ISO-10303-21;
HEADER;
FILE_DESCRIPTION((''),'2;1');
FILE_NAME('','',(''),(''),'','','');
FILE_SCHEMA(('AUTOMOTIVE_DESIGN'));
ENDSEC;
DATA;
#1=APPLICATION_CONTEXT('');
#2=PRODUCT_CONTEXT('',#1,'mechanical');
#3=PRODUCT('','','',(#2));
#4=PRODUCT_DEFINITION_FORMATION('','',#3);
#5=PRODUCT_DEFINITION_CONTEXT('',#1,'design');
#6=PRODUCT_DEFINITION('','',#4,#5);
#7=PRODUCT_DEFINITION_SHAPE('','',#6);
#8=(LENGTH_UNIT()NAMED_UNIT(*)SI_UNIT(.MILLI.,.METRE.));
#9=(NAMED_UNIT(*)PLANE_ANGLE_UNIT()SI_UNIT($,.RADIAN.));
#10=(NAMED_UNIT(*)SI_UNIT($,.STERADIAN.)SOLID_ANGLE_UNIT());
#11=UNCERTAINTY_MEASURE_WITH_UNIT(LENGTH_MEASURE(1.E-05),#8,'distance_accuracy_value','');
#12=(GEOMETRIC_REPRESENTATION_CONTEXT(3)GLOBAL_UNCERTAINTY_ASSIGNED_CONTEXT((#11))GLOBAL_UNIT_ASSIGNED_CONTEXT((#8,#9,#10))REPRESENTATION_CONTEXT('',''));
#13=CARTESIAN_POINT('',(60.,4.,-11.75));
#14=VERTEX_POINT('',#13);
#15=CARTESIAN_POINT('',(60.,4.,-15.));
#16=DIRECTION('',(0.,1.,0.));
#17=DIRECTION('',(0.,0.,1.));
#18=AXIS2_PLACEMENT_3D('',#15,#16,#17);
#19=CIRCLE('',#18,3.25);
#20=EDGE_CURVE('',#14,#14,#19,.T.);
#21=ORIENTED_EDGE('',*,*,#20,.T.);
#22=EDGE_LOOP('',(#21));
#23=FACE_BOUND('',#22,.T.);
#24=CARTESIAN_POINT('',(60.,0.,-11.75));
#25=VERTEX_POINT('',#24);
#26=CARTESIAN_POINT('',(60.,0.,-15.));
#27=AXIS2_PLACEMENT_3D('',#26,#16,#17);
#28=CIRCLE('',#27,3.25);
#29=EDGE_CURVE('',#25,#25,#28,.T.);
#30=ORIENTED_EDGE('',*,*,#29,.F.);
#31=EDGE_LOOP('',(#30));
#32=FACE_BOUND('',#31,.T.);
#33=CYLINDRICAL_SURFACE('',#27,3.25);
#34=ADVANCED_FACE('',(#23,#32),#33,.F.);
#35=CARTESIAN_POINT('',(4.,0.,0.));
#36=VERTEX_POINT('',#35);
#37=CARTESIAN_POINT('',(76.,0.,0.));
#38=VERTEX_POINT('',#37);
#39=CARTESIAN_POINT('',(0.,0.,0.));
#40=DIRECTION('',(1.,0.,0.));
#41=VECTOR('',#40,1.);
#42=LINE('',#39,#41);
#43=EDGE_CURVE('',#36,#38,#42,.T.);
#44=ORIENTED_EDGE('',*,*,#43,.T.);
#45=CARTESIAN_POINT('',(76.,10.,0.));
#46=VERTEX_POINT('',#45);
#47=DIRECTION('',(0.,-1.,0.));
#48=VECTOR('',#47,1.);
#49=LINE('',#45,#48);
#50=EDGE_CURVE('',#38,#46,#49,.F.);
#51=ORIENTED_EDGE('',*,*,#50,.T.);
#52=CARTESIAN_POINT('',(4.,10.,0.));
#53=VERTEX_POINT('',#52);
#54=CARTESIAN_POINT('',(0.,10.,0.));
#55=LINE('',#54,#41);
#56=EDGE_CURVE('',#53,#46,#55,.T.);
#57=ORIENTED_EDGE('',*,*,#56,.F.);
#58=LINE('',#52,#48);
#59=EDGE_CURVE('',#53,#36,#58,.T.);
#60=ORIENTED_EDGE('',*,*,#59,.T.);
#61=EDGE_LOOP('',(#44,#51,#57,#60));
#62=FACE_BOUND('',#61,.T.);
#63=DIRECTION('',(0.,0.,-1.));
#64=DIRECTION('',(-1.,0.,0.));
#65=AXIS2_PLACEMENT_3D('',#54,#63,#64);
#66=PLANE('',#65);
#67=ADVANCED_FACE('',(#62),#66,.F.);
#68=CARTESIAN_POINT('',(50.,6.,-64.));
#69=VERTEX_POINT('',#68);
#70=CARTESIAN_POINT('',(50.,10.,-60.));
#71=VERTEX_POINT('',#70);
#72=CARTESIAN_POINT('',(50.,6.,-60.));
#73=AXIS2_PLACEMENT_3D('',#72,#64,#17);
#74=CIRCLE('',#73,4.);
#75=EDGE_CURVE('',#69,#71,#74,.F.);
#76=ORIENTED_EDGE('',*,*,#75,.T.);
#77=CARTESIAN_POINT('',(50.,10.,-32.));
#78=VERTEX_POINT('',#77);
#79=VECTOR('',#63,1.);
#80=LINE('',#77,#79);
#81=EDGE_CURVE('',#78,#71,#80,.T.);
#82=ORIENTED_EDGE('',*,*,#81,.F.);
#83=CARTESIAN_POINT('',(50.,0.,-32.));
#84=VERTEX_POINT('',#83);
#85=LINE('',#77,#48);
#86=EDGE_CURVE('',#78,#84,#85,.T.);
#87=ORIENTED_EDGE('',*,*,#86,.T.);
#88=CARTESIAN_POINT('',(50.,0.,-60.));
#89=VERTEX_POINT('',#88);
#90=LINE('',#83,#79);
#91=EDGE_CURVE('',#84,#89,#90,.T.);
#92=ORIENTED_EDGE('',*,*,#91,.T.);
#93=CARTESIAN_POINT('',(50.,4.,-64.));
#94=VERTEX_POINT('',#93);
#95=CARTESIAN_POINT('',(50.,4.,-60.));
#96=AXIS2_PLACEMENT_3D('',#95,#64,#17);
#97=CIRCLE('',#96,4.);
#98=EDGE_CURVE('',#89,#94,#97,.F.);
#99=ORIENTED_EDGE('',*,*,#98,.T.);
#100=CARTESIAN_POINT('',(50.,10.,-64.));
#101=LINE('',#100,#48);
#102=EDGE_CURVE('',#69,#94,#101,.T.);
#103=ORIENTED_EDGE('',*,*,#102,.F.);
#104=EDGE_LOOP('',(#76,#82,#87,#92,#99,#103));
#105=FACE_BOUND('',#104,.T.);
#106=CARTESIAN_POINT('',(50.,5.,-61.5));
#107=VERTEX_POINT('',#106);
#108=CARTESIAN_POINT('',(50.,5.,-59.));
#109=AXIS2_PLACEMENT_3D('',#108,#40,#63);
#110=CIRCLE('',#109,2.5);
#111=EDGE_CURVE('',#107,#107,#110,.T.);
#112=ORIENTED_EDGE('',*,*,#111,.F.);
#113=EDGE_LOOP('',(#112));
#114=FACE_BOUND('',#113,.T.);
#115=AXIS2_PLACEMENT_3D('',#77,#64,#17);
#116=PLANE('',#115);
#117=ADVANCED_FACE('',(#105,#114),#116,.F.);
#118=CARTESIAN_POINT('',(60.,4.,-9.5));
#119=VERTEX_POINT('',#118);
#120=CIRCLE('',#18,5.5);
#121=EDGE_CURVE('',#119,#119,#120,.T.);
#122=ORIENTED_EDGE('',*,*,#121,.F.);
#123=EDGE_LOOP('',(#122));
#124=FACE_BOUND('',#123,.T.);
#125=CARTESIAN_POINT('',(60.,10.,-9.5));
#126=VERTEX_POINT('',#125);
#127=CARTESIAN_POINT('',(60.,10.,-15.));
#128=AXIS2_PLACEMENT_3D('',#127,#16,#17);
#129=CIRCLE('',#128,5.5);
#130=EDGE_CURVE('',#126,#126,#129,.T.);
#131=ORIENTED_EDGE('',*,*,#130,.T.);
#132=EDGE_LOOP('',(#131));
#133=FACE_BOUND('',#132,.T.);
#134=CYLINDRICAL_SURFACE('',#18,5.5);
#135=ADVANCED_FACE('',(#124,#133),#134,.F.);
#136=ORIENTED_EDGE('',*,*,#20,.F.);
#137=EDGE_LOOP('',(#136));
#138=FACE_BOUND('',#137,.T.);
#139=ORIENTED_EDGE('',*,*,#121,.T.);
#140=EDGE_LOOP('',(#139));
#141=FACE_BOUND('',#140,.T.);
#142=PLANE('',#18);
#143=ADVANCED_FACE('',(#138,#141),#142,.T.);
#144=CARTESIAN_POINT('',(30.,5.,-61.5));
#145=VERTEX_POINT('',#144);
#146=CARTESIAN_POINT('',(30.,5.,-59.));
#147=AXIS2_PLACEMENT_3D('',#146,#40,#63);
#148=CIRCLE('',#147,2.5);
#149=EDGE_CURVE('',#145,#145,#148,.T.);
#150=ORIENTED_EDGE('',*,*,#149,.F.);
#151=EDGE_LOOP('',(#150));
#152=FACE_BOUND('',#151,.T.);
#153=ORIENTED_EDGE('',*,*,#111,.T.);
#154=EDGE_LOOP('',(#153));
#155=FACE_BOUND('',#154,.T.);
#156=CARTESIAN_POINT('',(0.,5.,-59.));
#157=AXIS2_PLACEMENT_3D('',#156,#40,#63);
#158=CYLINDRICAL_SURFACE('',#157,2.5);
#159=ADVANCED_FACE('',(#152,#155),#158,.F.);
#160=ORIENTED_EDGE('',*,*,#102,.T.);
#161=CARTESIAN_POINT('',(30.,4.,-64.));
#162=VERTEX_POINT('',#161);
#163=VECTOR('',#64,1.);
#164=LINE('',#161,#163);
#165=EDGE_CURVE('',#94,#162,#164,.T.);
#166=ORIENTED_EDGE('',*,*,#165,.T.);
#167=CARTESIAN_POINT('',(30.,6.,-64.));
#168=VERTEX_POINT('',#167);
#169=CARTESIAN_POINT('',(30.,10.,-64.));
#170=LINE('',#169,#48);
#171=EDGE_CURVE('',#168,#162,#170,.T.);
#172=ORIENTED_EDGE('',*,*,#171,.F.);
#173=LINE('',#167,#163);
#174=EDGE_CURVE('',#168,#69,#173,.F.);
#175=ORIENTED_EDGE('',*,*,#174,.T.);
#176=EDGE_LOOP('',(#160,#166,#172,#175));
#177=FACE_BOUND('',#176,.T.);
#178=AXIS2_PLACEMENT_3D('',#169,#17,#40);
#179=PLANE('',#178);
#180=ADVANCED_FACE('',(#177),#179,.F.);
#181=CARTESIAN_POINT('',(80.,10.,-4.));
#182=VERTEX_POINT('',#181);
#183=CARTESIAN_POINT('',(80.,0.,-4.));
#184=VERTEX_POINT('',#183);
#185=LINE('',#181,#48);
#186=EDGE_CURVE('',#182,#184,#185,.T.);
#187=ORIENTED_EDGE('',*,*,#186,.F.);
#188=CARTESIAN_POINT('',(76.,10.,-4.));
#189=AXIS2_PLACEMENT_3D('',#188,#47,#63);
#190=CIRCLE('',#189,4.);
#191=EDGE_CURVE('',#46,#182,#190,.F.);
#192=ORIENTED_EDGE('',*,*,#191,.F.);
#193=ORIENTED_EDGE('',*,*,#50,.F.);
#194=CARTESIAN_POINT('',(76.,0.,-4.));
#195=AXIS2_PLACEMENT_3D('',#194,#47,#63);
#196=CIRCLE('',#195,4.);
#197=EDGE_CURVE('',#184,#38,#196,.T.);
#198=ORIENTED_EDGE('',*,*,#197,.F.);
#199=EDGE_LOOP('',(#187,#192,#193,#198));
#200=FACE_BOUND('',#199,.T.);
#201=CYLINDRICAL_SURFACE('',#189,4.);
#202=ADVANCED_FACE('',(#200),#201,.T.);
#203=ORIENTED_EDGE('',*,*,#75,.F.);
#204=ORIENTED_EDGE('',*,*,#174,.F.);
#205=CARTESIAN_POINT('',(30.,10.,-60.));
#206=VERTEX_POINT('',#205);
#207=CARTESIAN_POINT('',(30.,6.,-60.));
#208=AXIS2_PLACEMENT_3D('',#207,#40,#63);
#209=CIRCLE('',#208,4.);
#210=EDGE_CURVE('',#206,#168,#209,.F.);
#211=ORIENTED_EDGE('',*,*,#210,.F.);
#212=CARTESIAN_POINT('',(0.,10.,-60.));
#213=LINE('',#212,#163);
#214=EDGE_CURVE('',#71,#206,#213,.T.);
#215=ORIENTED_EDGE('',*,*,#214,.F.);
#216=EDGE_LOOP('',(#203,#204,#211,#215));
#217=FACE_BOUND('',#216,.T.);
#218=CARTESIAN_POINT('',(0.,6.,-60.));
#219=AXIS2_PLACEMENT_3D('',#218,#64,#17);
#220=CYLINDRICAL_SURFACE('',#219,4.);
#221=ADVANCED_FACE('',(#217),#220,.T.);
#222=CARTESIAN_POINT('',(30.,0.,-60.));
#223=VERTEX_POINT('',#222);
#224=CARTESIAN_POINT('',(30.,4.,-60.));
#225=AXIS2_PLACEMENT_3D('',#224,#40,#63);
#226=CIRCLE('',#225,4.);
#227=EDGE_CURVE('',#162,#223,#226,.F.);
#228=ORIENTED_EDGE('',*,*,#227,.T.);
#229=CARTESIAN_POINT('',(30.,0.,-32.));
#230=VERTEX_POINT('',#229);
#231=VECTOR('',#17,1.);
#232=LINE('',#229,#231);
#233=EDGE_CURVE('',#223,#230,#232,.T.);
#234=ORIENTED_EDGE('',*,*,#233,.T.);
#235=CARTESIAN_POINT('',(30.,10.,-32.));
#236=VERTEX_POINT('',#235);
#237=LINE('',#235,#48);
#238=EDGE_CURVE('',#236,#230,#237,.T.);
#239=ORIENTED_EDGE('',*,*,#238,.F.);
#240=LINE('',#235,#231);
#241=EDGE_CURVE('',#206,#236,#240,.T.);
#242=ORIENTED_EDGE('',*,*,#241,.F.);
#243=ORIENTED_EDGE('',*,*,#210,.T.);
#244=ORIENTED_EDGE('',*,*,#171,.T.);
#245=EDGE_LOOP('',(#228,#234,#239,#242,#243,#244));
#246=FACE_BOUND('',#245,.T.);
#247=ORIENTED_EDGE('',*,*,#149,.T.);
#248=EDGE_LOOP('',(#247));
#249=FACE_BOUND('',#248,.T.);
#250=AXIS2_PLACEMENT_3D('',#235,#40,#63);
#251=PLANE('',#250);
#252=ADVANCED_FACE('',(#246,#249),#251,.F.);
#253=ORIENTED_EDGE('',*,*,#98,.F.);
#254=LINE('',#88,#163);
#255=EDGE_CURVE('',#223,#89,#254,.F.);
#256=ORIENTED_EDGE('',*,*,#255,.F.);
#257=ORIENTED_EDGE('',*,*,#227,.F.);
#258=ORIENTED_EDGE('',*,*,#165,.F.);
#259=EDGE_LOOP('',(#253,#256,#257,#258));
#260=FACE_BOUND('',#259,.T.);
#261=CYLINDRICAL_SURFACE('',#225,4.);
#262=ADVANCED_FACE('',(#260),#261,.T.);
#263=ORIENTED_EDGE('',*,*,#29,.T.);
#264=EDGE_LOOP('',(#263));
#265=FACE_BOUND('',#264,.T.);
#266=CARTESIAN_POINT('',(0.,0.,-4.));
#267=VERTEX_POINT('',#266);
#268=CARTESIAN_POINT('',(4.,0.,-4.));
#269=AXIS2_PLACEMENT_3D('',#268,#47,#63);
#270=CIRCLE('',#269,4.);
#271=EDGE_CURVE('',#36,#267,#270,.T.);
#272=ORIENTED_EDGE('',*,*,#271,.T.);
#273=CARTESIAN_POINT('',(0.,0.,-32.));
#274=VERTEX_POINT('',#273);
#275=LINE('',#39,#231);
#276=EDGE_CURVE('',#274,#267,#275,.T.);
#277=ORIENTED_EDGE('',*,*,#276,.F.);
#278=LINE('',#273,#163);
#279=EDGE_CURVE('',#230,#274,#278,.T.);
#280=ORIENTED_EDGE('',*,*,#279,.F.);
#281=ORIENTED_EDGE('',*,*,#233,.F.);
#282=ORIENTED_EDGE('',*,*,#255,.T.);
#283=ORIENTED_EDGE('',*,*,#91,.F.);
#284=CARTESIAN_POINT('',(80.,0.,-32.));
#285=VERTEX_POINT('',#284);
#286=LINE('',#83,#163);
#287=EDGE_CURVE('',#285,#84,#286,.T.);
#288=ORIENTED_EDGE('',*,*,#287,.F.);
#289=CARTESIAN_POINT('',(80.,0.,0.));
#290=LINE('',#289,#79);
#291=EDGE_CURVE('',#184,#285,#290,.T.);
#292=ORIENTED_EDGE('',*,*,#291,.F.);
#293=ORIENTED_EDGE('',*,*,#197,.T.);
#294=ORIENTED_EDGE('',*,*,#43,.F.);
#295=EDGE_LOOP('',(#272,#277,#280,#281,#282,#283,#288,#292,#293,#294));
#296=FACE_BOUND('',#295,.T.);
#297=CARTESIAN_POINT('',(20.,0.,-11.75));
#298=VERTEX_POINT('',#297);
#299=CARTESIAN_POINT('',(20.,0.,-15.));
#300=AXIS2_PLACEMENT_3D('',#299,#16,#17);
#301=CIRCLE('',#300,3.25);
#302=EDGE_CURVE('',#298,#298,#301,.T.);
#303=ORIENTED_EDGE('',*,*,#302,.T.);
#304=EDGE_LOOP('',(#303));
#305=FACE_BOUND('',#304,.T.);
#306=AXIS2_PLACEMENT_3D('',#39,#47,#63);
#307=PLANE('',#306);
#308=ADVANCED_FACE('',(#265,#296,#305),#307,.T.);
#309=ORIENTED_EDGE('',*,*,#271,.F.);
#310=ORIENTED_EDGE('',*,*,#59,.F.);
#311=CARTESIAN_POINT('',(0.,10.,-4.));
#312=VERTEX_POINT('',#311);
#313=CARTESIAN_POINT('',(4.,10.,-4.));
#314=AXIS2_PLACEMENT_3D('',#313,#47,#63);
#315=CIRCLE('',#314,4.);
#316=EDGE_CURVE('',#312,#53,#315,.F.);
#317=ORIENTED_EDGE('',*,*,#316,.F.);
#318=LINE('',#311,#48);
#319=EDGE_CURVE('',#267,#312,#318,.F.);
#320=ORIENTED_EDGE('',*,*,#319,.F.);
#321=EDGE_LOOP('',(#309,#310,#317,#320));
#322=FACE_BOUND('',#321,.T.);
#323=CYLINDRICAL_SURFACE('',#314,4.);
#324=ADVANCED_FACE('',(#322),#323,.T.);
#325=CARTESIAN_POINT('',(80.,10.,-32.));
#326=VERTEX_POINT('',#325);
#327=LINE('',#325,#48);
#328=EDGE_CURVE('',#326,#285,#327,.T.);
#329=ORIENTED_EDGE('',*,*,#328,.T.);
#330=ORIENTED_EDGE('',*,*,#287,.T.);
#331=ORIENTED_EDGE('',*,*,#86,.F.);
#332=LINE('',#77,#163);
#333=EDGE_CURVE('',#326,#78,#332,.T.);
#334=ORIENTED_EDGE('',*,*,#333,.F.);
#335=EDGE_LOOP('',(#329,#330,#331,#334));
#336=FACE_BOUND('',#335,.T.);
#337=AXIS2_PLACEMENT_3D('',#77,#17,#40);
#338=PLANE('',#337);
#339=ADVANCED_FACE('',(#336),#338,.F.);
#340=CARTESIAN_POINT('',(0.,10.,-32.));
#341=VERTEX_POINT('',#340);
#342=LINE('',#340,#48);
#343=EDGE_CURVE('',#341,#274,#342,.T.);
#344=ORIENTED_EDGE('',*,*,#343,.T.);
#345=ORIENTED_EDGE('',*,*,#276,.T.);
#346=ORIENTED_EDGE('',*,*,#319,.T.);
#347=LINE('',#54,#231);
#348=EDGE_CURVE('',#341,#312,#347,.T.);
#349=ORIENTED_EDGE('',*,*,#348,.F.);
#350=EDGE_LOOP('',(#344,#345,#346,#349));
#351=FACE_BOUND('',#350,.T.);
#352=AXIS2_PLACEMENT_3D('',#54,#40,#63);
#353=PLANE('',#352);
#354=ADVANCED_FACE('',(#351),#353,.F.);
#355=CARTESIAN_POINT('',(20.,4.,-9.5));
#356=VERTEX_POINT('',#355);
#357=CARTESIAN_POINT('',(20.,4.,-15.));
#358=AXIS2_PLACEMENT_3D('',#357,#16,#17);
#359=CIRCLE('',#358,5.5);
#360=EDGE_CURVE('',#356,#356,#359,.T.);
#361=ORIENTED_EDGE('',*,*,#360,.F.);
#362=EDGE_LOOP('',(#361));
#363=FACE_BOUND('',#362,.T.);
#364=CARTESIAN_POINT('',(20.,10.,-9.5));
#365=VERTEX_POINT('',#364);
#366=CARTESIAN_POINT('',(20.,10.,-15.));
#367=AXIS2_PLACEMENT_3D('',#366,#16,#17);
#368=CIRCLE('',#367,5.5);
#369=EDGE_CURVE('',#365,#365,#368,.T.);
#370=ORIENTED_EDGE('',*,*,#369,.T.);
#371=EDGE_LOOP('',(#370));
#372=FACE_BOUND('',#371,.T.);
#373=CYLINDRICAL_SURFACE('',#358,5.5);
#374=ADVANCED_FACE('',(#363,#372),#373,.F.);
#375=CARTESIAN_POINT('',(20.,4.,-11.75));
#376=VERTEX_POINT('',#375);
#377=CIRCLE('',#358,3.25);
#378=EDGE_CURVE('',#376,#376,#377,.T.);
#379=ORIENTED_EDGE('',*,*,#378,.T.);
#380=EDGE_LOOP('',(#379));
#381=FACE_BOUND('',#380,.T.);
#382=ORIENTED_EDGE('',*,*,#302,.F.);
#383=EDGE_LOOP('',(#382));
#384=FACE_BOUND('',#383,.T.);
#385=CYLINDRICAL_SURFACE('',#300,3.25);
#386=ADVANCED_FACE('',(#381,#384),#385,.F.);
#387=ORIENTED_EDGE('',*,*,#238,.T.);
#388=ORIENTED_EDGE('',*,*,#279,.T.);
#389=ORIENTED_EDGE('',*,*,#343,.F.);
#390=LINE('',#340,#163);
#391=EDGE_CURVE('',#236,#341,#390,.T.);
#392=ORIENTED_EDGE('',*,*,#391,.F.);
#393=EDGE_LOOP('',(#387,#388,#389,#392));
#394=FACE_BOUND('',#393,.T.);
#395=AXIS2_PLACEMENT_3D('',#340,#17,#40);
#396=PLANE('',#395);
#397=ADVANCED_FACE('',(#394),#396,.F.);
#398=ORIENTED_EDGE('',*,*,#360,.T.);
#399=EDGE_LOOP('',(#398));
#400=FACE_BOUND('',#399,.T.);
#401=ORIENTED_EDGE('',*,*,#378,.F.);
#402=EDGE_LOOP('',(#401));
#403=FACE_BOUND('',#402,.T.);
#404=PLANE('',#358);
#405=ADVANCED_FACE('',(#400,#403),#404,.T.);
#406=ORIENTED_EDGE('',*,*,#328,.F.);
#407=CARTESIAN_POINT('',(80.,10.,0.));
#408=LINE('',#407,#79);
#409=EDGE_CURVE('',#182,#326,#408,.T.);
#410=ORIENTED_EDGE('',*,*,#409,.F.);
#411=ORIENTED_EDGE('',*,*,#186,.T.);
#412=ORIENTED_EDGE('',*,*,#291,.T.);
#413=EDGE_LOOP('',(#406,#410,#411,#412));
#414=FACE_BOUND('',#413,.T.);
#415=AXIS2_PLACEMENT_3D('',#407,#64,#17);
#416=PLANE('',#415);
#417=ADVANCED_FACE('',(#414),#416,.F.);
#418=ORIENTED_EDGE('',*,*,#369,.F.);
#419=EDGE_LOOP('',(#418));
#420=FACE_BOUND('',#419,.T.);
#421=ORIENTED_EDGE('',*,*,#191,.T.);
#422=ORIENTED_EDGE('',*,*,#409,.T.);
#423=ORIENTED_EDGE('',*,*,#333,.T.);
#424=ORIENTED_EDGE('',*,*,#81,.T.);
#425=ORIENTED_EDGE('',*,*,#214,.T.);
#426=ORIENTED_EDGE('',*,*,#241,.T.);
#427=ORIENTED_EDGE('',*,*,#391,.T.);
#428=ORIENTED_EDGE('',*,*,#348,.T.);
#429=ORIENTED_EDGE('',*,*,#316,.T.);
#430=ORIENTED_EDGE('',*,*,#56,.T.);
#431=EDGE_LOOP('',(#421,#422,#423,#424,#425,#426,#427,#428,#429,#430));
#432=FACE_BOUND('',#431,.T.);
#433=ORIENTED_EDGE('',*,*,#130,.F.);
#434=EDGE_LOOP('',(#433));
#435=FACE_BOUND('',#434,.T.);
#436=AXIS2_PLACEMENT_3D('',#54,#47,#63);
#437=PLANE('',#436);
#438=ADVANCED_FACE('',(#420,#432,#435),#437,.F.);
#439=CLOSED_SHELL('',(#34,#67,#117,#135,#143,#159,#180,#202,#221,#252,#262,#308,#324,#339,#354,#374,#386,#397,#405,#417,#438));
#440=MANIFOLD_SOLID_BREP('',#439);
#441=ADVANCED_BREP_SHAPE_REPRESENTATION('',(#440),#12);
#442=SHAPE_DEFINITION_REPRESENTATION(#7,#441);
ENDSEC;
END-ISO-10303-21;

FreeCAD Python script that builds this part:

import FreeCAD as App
import Part
import Sketcher

V = App.Vector
Q = App.Units.Quantity


def edges_at(feature, points):
    """Names of the edges that pass closest to the given points."""
    edges = feature.Shape.Edges
    near = lambda p: min(range(len(edges)), key=lambda i: edges[i].distToShape(Part.Vertex(*p))[0])
    return sorted({f"Edge{near(p) + 1}" for p in points})


def add_polygon(sketch, points):
    """Adds a closed chain of lines whose ends are joined by coincident constraints."""
    first, n = sketch.GeometryCount, len(points)
    for a, b in zip(points, points[1:] + points[:1]):
        sketch.addGeometry(Part.LineSegment(App.Vector(*a, 0), App.Vector(*b, 0)), False)
    for i in range(n):
        sketch.addConstraint(Sketcher.Constraint("Coincident", first + i, 2, first + (i + 1) % n, 1))

doc = App.newDocument("Part")
body = doc.addObject("PartDesign::Body", "Body")

# Sketch on XZ plane
sketch1 = doc.addObject("Sketcher::SketchObject", "Sketch")
body.addObject(sketch1)
sketch1.AttachmentSupport = (doc.XZ_Plane, [""])
sketch1.MapMode = "FlatFace"
add_polygon(sketch1, [(80, -32), (50, -32), (50, -64), (30, -64), (30, -32), (0, -32), (0, 0), (80, 0)])  # lines 0-7
sketch1.addConstraint([
    Sketcher.Constraint("Horizontal", 0),
    Sketcher.Constraint("Vertical", 1),
    Sketcher.Constraint("Horizontal", 2),
    Sketcher.Constraint("Vertical", 3),
    Sketcher.Constraint("Horizontal", 4),
    Sketcher.Constraint("Vertical", 5),
    Sketcher.Constraint("Horizontal", 6),
    Sketcher.Constraint("Vertical", 7),
    Sketcher.Constraint("Coincident", 5, 2, -1, 1),
    Sketcher.Constraint("Horizontal", 0, 2, 3, 2),
    Sketcher.Constraint("Equal", 0, 4),
    Sketcher.Constraint("Equal", 3, 5),
    Sketcher.Constraint("DistanceX", 0, 2, 0, 1, Q("30 mm")),
    Sketcher.Constraint("DistanceX", 2, 2, 2, 1, Q("20 mm")),
    Sketcher.Constraint("DistanceY", 1, 2, 1, 1, Q("32 mm")),
])
pad1 = doc.addObject("PartDesign::Pad", "Pad")
body.addObject(pad1)
pad1.Profile = sketch1
pad1.Length = 10
pad1.Reversed = True
doc.recompute()

fillet = doc.addObject("PartDesign::Fillet", "Fillet")
body.addObject(fillet)
fillet.Base = (pad1, edges_at(pad1, [(40, 10, -64), (40, 0, -64)]))
fillet.Radius = 4

# Sketch on YZ plane
sketch2 = doc.addObject("Sketcher::SketchObject", "Sketch001")
body.addObject(sketch2)
sketch2.AttachmentSupport = (doc.YZ_Plane, [""])
sketch2.MapMode = "FlatFace"
sketch2.AttachmentOffset = App.Placement(V(0, 0, 50), App.Rotation())
sketch2.addGeometry(Part.Circle(V(5, -59, 0), V(0, 0, 1), 2.5), False)
sketch2.addConstraint([
    Sketcher.Constraint("Diameter", 0, Q("5 mm")),
    Sketcher.Constraint("DistanceX", -1, 1, 0, 3, Q("5 mm")),
    Sketcher.Constraint("DistanceY", 0, 3, -1, 1, Q("59 mm")),
])
pocket1 = doc.addObject("PartDesign::Pocket", "Pocket")
body.addObject(pocket1)
pocket1.Profile = sketch2
pocket1.Type = "ThroughAll"
doc.recompute()

fillet2 = doc.addObject("PartDesign::Fillet", "Fillet001")
body.addObject(fillet2)
fillet2.Base = (pocket1, edges_at(pocket1, [(80, 5, 0), (0, 5, 0)]))
fillet2.Radius = 4

# Sketch on XZ plane
sketch3 = doc.addObject("Sketcher::SketchObject", "Sketch002")
body.addObject(sketch3)
sketch3.AttachmentSupport = (doc.XZ_Plane, [""])
sketch3.MapMode = "FlatFace"
sketch3.AttachmentOffset = App.Placement(V(0, 0, -10), App.Rotation())
sketch3.addGeometry([
    Part.Circle(V(20, -15, 0), V(0, 0, 1), 6),
    Part.Circle(V(60, -15, 0), V(0, 0, 1), 6),
], False)
sketch3.addConstraint([
    Sketcher.Constraint("Equal", 0, 1),
    Sketcher.Constraint("Horizontal", 0, 3, 1, 3),
    Sketcher.Constraint("Diameter", 0, Q("11 mm")),
    Sketcher.Constraint("DistanceX", -1, 1, 0, 3, Q("20 mm")),
    Sketcher.Constraint("DistanceY", 0, 3, -1, 1, Q("15 mm")),
    Sketcher.Constraint("DistanceX", -1, 1, 1, 3, Q("60 mm")),
])
pocket2 = doc.addObject("PartDesign::Pocket", "Pocket001")
body.addObject(pocket2)
pocket2.Profile = sketch3
pocket2.Length = 6
pocket2.Reversed = True

# Sketch on XZ plane
sketch4 = doc.addObject("Sketcher::SketchObject", "Sketch003")
body.addObject(sketch4)
sketch4.AttachmentSupport = (doc.XZ_Plane, [""])
sketch4.MapMode = "FlatFace"
sketch4.AttachmentOffset = App.Placement(V(0, 0, -4), App.Rotation())
sketch4.addGeometry([
    Part.Circle(V(20, -15, 0), V(0, 0, 1), 3.2),
    Part.Circle(V(60, -15, 0), V(0, 0, 1), 3.2),
], False)
sketch4.addConstraint([
    Sketcher.Constraint("Equal", 0, 1),
    Sketcher.Constraint("Horizontal", 0, 3, 1, 3),
    Sketcher.Constraint("Diameter", 0, Q("6.5 mm")),
    Sketcher.Constraint("DistanceX", -1, 1, 0, 3, Q("20 mm")),
    Sketcher.Constraint("DistanceY", 0, 3, -1, 1, Q("15 mm")),
    Sketcher.Constraint("DistanceX", -1, 1, 1, 3, Q("60 mm")),
])
pocket3 = doc.addObject("PartDesign::Pocket", "Pocket002")
body.addObject(pocket3)
pocket3.Profile = sketch4
pocket3.Type = "ThroughAll"
pocket3.Reversed = True

doc.recompute()
